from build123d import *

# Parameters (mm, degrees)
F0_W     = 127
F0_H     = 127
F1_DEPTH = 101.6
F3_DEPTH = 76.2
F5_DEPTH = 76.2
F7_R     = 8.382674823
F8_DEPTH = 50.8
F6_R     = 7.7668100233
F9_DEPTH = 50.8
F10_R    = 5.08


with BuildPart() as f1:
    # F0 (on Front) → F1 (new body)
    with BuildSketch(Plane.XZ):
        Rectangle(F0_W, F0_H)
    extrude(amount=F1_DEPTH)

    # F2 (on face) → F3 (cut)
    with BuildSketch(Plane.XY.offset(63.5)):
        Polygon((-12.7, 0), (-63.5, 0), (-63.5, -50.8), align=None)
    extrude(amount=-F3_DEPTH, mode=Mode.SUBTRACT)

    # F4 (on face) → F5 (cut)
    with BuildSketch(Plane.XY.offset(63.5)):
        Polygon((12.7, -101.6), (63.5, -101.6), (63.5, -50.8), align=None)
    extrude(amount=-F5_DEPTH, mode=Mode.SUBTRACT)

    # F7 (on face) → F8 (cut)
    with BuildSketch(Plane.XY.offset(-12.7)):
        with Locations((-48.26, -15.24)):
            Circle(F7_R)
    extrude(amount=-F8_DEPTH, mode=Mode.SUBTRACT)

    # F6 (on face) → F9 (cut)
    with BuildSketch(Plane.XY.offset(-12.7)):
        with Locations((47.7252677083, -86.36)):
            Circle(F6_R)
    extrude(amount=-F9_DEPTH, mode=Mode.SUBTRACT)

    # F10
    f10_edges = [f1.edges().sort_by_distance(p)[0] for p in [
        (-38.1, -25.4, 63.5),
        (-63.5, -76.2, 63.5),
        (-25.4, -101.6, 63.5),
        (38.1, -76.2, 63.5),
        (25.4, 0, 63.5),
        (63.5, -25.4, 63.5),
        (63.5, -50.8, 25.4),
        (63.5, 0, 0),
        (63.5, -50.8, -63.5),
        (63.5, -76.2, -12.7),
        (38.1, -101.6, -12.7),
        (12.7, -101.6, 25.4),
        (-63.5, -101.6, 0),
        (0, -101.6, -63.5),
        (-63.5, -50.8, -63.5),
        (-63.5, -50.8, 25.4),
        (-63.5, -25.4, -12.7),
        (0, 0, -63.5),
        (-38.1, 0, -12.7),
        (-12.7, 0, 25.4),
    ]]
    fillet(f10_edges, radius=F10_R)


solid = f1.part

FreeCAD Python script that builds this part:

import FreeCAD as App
import Part
import Sketcher

V = App.Vector
Q = App.Units.Quantity


def edges_at(feature, points):
    """Names of the edges that pass closest to the given points."""
    edges = feature.Shape.Edges
    near = lambda p: min(range(len(edges)), key=lambda i: edges[i].distToShape(Part.Vertex(*p))[0])
    return sorted({f"Edge{near(p) + 1}" for p in points})


def add_polygon(sketch, points):
    """Adds a closed chain of lines whose ends are joined by coincident constraints."""
    first, n = sketch.GeometryCount, len(points)
    for a, b in zip(points, points[1:] + points[:1]):
        sketch.addGeometry(Part.LineSegment(App.Vector(*a, 0), App.Vector(*b, 0)), False)
    for i in range(n):
        sketch.addConstraint(Sketcher.Constraint("Coincident", first + i, 2, first + (i + 1) % n, 1))

doc = App.newDocument("Part")
body = doc.addObject("PartDesign::Body", "Body")

sketch1 = body.newObject("Sketcher::SketchObject", "Sketch")
sketch1.AttachmentSupport = (doc.getObject("XZ_Plane"), [""])
sketch1.MapMode = "FlatFace"
add_polygon(sketch1, [(-63.5, 63.5), (-63.5, -63.5), (63.5, -63.5), (63.5, 63.5)])
sketch1.addConstraint([
    Sketcher.Constraint("Vertical", 0),
    Sketcher.Constraint("Horizontal", 1),
    Sketcher.Constraint("Vertical", 2),
    Sketcher.Constraint("Horizontal", 3),
    Sketcher.Constraint("Symmetric", 0, 2, 2, 2, -1, 1),
    Sketcher.Constraint("Equal", 3, 0),
    Sketcher.Constraint("DistanceX", 1, 1, 1, 2, Q("5 in")),
])
pad1 = body.newObject("PartDesign::Pad", "Pad")
pad1.Profile = sketch1
pad1.Length = Q("4 in")

sketch2 = body.newObject("Sketcher::SketchObject", "Sketch001")
sketch2.AttachmentSupport = (doc.getObject("XY_Plane"), [""])
sketch2.MapMode = "FlatFace"
sketch2.AttachmentOffset = App.Placement(V(0, 0, 2.5 * 25.4), App.Rotation())
add_polygon(sketch2, [(-12.7, 0), (-63.5, 0), (-63.5, -50.8)])
sketch2.addConstraint([
    Sketcher.Constraint("Horizontal", 0),
    Sketcher.Constraint("Vertical", 1),
    Sketcher.Constraint("PointOnObject", 0, 2, -1),
    Sketcher.Constraint("Equal", 0, 1),
    Sketcher.Constraint("DistanceX", 0, 2, 0, 1, Q("2 in")),
    Sketcher.Constraint("DistanceX", 0, 2, -1, 1, Q("2.5 in")),
])
pocket1 = body.newObject("PartDesign::Pocket", "Pocket")
pocket1.Profile = sketch2
pocket1.Length = Q("3 in")

sketch3 = body.newObject("Sketcher::SketchObject", "Sketch002")
sketch3.AttachmentSupport = (doc.getObject("XY_Plane"), [""])
sketch3.MapMode = "FlatFace"
sketch3.AttachmentOffset = App.Placement(V(0, 0, 2.5 * 25.4), App.Rotation())
add_polygon(sketch3, [(12.7, -101.6), (63.5, -101.6), (63.5, -50.8)])
sketch3.addConstraint([
    Sketcher.Constraint("Horizontal", 0),
    Sketcher.Constraint("Vertical", 1),
    Sketcher.Constraint("Equal", 0, 1),
    Sketcher.Constraint("DistanceX", 0, 1, 0, 2, Q("2 in")),
    Sketcher.Constraint("DistanceY", 0, 2, -1, 1, Q("4 in")),
    Sketcher.Constraint("DistanceX", -1, 1, 0, 2, Q("2.5 in")),
])
pocket2 = body.newObject("PartDesign::Pocket", "Pocket001")
pocket2.Profile = sketch3
pocket2.Length = Q("3 in")

sketch4 = body.newObject("Sketcher::SketchObject", "Sketch003")
sketch4.AttachmentSupport = (doc.getObject("XY_Plane"), [""])
sketch4.MapMode = "FlatFace"
sketch4.AttachmentOffset = App.Placement(V(0, 0, -0.5 * 25.4), App.Rotation())
sketch4.addGeometry(Part.Circle(V(-48.26, -15.24, 0), V(0, 0, 1), 8.382675), False)
sketch4.addConstraint([
    Sketcher.Constraint("DistanceX", 0, 3, -1, 1, Q("1.9 in")),
    Sketcher.Constraint("DistanceY", 0, 3, -1, 1, Q("0.6 in")),
    Sketcher.Constraint("Diameter", 0, Q("16.76535 mm")),
])
pocket3 = body.newObject("PartDesign::Pocket", "Pocket002")
pocket3.Profile = sketch4
pocket3.Length = Q("2 in")

sketch5 = body.newObject("Sketcher::SketchObject", "Sketch004")
sketch5.AttachmentSupport = (doc.getObject("XY_Plane"), [""])
sketch5.MapMode = "FlatFace"
sketch5.AttachmentOffset = App.Placement(V(0, 0, -0.5 * 25.4), App.Rotation())
sketch5.addGeometry(Part.Circle(V(47.725268, -86.36, 0), V(0, 0, 1), 7.76681), False)
sketch5.addConstraint([
    Sketcher.Constraint("DistanceY", 0, 3, -1, 1, Q("3.4 in")),
    Sketcher.Constraint("Diameter", 0, Q("15.53362 mm")),
    Sketcher.Constraint("DistanceX", -1, 1, 0, 3, Q("47.725268 mm")),
])
pocket4 = body.newObject("PartDesign::Pocket", "Pocket003")
pocket4.Profile = sketch5
pocket4.Length = Q("2 in")
doc.recompute()

fillet = body.newObject("PartDesign::Fillet", "Fillet")
fillet.Base = (pocket4, edges_at(pocket4, [
    (-38.1, -25.4, 63.5),
    (-63.5, -76.2, 63.5),
    (-25.4, -101.6, 63.5),
    (38.1, -76.2, 63.5),
    (25.4, 0, 63.5),
    (63.5, -25.4, 63.5),
    (63.5, -50.8, 25.4),
    (63.5, 0, 0),
    (63.5, -50.8, -63.5),
    (63.5, -76.2, -12.7),
    (38.1, -101.6, -12.7),
    (12.7, -101.6, 25.4),
    (-63.5, -101.6, 0),
    (0, -101.6, -63.5),
    (-63.5, -50.8, -63.5),
    (-63.5, -50.8, 25.4),
    (-63.5, -25.4, -12.7),
    (0, 0, -63.5),
    (-38.1, 0, -12.7),
    (-12.7, 0, 25.4),
]))
fillet.Radius = Q("0.2 in")

doc.recompute()
